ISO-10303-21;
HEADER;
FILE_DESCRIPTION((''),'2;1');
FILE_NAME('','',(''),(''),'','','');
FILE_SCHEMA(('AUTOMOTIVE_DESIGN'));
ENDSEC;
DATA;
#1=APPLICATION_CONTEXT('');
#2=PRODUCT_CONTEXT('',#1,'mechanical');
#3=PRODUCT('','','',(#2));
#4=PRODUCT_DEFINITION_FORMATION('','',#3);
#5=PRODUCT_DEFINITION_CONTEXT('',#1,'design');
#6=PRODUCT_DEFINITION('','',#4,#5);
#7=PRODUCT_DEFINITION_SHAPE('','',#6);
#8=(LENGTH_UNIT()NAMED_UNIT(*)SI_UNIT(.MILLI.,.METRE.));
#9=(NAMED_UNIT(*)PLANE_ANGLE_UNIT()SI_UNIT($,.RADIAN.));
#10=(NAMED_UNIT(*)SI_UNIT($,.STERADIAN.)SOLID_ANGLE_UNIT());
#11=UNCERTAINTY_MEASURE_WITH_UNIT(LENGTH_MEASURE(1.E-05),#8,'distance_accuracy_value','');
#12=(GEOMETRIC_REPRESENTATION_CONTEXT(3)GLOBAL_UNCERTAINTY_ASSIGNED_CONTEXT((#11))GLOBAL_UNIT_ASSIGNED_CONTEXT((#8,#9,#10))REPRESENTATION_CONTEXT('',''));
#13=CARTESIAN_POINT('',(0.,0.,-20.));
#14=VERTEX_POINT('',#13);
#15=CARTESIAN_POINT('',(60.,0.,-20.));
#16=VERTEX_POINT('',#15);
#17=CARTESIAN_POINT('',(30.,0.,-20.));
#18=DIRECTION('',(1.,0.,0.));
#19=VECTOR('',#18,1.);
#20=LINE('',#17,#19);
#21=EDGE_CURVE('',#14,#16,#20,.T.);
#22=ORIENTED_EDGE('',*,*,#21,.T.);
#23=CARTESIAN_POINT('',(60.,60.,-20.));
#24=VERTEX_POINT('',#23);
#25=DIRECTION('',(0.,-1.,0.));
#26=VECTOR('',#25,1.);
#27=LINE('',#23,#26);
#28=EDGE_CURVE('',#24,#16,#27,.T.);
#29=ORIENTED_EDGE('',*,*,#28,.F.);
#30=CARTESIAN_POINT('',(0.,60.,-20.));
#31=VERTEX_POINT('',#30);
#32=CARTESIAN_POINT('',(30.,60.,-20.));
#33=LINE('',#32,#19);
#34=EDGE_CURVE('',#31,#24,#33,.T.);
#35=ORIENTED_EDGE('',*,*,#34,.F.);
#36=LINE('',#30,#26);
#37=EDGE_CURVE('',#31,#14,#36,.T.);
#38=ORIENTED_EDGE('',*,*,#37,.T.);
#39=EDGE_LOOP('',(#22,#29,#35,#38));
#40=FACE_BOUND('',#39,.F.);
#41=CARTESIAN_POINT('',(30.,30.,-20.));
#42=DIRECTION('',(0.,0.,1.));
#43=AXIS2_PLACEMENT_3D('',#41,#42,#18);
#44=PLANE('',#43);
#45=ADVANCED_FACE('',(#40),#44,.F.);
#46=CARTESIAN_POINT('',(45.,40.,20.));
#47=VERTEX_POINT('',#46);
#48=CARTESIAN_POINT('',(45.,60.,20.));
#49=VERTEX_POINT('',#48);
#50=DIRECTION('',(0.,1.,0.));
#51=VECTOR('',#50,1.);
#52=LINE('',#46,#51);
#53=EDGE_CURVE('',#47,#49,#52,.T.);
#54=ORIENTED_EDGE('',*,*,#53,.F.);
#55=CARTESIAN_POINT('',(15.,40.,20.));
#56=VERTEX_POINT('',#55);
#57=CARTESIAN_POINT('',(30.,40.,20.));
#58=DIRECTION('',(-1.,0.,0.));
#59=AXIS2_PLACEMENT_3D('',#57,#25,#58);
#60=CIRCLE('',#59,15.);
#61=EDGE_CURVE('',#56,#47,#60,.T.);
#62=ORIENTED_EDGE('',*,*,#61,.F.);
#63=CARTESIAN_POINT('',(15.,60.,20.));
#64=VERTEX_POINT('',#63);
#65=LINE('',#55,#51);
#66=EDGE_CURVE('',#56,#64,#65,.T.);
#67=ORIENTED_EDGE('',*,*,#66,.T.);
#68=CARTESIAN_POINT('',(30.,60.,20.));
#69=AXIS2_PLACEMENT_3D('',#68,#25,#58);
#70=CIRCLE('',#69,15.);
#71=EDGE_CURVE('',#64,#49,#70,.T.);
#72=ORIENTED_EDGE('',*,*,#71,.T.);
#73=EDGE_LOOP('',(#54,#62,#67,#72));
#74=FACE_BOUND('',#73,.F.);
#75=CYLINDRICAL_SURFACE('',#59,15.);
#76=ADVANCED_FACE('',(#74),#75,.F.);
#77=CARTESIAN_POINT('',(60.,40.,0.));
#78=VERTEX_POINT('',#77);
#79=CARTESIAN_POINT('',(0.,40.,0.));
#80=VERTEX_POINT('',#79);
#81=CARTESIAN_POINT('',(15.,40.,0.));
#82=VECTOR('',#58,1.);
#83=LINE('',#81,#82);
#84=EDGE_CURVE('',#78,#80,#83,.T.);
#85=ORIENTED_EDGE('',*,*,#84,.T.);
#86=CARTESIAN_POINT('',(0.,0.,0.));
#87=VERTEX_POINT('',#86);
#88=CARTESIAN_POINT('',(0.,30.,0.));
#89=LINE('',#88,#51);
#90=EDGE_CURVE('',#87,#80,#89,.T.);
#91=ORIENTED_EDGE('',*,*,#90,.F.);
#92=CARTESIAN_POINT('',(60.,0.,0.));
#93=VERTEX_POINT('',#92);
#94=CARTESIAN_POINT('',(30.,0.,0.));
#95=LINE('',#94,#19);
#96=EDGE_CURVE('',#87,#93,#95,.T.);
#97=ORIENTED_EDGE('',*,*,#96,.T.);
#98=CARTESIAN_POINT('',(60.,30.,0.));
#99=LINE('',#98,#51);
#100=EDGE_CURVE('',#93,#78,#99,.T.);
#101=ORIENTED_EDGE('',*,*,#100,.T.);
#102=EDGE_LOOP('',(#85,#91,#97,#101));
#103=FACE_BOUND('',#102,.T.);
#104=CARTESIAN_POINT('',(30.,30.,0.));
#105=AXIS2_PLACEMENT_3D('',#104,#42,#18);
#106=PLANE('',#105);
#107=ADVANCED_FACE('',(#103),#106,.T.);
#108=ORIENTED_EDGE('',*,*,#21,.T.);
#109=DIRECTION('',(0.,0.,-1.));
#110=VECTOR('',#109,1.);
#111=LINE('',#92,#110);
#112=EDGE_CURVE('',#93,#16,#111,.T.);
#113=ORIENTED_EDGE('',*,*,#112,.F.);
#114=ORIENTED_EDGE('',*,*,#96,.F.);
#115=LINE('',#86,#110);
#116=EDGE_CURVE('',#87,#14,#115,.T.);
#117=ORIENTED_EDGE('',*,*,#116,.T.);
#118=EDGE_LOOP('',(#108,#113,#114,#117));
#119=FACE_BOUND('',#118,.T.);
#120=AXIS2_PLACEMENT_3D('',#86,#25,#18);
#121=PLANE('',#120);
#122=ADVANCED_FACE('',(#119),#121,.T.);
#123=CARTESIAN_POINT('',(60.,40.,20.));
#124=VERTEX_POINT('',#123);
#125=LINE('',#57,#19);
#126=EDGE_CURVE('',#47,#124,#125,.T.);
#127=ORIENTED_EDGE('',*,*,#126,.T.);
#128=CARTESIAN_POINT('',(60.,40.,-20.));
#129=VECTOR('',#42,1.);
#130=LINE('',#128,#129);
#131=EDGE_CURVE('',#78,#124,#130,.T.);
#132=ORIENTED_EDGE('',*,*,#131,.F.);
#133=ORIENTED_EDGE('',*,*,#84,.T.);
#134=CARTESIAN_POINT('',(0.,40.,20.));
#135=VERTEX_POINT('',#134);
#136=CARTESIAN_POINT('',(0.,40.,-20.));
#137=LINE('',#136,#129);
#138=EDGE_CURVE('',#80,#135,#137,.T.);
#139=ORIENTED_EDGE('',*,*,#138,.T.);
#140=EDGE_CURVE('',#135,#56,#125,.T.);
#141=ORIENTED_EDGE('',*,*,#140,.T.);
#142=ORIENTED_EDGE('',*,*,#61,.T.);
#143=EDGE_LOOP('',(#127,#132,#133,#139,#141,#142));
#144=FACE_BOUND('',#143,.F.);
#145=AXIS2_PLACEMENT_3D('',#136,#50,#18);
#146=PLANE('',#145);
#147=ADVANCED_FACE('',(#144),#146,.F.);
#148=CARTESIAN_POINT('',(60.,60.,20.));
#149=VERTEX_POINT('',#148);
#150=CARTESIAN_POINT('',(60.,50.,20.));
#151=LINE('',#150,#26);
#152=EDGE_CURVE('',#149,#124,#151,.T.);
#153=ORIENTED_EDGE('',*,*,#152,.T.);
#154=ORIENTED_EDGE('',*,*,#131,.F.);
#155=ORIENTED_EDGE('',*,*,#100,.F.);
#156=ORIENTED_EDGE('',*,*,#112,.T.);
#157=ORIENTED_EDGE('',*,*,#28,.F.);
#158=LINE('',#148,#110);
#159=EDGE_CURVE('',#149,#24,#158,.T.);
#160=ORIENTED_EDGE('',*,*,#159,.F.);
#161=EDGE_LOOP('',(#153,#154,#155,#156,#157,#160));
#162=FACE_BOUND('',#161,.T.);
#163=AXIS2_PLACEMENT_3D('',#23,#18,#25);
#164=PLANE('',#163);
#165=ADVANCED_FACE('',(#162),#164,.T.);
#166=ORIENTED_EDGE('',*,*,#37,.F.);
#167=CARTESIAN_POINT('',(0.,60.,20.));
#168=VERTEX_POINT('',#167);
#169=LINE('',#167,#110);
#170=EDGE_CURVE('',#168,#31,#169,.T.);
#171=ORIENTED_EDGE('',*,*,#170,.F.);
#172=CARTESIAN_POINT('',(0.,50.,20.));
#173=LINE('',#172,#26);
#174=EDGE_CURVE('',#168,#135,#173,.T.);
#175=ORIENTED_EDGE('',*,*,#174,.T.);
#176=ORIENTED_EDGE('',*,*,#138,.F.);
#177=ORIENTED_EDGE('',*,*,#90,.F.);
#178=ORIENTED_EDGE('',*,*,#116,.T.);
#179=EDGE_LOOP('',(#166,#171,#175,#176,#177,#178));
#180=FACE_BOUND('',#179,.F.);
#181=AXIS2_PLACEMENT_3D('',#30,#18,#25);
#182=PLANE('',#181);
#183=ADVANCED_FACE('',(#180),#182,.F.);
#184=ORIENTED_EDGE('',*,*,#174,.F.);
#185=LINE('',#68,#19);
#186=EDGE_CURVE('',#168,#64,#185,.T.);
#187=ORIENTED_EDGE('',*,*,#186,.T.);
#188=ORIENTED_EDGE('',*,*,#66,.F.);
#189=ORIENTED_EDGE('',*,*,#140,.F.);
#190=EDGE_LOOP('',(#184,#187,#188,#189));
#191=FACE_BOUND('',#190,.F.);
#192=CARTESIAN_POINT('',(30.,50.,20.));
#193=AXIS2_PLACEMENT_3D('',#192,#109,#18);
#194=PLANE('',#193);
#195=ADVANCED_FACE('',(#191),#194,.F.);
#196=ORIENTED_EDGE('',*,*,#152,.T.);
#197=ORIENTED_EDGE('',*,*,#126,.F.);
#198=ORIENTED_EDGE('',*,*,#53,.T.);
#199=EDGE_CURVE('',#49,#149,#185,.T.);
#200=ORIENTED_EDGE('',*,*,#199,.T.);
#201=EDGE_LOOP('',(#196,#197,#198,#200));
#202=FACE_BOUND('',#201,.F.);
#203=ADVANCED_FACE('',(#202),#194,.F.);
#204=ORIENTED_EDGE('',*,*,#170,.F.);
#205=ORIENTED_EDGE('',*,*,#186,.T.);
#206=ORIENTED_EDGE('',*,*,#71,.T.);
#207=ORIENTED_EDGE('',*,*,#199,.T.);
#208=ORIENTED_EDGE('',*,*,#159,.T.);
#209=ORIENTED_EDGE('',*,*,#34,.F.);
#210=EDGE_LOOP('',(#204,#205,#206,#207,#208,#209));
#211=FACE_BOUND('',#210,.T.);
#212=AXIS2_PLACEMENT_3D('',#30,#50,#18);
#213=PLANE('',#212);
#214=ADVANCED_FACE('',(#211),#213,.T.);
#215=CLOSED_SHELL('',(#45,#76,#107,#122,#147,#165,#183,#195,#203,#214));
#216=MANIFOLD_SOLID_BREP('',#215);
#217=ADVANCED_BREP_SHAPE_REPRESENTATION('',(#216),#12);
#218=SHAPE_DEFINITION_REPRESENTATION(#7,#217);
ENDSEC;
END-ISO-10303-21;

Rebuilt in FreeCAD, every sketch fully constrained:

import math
import FreeCAD as App
import Part
import Sketcher
from FreeCAD import Vector


def add_polygon(sketch, points):
    """Adds a closed chain of lines whose ends are joined by coincident constraints."""
    first, n = sketch.GeometryCount, len(points)
    for a, b in zip(points, points[1:] + points[:1]):
        sketch.addGeometry(Part.LineSegment(App.Vector(*a, 0), App.Vector(*b, 0)), False)
    for i in range(n):
        sketch.addConstraint(Sketcher.Constraint("Coincident", first + i, 2, first + (i + 1) % n, 1))

doc = App.newDocument("Part")
body = doc.addObject("PartDesign::Body", "Body")

# Sketch on XY plane
sketch1 = body.newObject("Sketcher::SketchObject", "Sketch")
sketch1.AttachmentSupport = (doc.getObject("XY_Plane"), [""])
sketch1.MapMode = "FlatFace"
add_polygon(sketch1, [(0, 60), (0, 0), (60, 0), (60, 60)])  # lines 0-3
sketch1.addConstraint(Sketcher.Constraint("Vertical", 0))
sketch1.addConstraint(Sketcher.Constraint("Horizontal", 1))
sketch1.addConstraint(Sketcher.Constraint("Vertical", 2))
sketch1.addConstraint(Sketcher.Constraint("Horizontal", 3))
sketch1.addConstraint(Sketcher.Constraint("Coincident", 0, 2, -1, 1))
sketch1.addConstraint(Sketcher.Constraint("Equal", 3, 0))
sketch1.addConstraint(Sketcher.Constraint("DistanceX", 1, 1, 1, 2, 60.0))
pad1 = body.newObject("PartDesign::Pad", "Pad")
pad1.Profile = sketch1
pad1.Length = 20
pad1.Reversed = True

# Sketch on XY plane
sketch2 = body.newObject("Sketcher::SketchObject", "Sketch001")
sketch2.AttachmentSupport = (doc.getObject("XY_Plane"), [""])
sketch2.MapMode = "FlatFace"
sketch2.AttachmentOffset = App.Placement(Vector(0, 0, -20), App.Rotation())
add_polygon(sketch2, [(0, 40), (0, 60), (60, 60), (60, 40)])  # lines 0-3
sketch2.addConstraint(Sketcher.Constraint("Vertical", 0))
sketch2.addConstraint(Sketcher.Constraint("Horizontal", 1))
sketch2.addConstraint(Sketcher.Constraint("Vertical", 2))
sketch2.addConstraint(Sketcher.Constraint("Horizontal", 3))
sketch2.addConstraint(Sketcher.Constraint("PointOnObject", 0, 2, -2))
sketch2.addConstraint(Sketcher.Constraint("DistanceX", 1, 1, 1, 2, 60.0))
sketch2.addConstraint(Sketcher.Constraint("DistanceY", 0, 1, 0, 2, 20.0))
sketch2.addConstraint(Sketcher.Constraint("DistanceY", -1, 1, 0, 2, 60.0))
pad2 = body.newObject("PartDesign::Pad", "Pad001")
pad2.Profile = sketch2
pad2.Length = 40

# Sketch on XZ plane
sketch3 = body.newObject("Sketcher::SketchObject", "Sketch002")
sketch3.AttachmentSupport = (doc.getObject("XZ_Plane"), [""])
sketch3.MapMode = "FlatFace"
sketch3.AttachmentOffset = App.Placement(Vector(0, 0, -40), App.Rotation())
sketch3.addGeometry(Part.LineSegment(Vector(45, 20, 0), Vector(15, 20, 0)), False)
sketch3.addGeometry(Part.ArcOfCircle(Part.Circle(Vector(30, 20, 0), Vector(0, 0, 1), 15), math.radians(180), math.radians(360)), False)
sketch3.addConstraint(Sketcher.Constraint("Coincident", 0, 1, 1, 2))
sketch3.addConstraint(Sketcher.Constraint("Coincident", 1, 1, 0, 2))
sketch3.addConstraint(Sketcher.Constraint("Horizontal", 0))
sketch3.addConstraint(Sketcher.Constraint("Horizontal", 1, 3, 0, 1))
sketch3.addConstraint(Sketcher.Constraint("Radius", 1, 15.0))
sketch3.addConstraint(Sketcher.Constraint("DistanceX", -1, 1, 1, 3, 30.0))
sketch3.addConstraint(Sketcher.Constraint("DistanceY", -1, 1, 1, 3, 20.0))
pocket1 = body.newObject("PartDesign::Pocket", "Pocket")
pocket1.Profile = sketch3
pocket1.Length = 25

doc.recompute()
